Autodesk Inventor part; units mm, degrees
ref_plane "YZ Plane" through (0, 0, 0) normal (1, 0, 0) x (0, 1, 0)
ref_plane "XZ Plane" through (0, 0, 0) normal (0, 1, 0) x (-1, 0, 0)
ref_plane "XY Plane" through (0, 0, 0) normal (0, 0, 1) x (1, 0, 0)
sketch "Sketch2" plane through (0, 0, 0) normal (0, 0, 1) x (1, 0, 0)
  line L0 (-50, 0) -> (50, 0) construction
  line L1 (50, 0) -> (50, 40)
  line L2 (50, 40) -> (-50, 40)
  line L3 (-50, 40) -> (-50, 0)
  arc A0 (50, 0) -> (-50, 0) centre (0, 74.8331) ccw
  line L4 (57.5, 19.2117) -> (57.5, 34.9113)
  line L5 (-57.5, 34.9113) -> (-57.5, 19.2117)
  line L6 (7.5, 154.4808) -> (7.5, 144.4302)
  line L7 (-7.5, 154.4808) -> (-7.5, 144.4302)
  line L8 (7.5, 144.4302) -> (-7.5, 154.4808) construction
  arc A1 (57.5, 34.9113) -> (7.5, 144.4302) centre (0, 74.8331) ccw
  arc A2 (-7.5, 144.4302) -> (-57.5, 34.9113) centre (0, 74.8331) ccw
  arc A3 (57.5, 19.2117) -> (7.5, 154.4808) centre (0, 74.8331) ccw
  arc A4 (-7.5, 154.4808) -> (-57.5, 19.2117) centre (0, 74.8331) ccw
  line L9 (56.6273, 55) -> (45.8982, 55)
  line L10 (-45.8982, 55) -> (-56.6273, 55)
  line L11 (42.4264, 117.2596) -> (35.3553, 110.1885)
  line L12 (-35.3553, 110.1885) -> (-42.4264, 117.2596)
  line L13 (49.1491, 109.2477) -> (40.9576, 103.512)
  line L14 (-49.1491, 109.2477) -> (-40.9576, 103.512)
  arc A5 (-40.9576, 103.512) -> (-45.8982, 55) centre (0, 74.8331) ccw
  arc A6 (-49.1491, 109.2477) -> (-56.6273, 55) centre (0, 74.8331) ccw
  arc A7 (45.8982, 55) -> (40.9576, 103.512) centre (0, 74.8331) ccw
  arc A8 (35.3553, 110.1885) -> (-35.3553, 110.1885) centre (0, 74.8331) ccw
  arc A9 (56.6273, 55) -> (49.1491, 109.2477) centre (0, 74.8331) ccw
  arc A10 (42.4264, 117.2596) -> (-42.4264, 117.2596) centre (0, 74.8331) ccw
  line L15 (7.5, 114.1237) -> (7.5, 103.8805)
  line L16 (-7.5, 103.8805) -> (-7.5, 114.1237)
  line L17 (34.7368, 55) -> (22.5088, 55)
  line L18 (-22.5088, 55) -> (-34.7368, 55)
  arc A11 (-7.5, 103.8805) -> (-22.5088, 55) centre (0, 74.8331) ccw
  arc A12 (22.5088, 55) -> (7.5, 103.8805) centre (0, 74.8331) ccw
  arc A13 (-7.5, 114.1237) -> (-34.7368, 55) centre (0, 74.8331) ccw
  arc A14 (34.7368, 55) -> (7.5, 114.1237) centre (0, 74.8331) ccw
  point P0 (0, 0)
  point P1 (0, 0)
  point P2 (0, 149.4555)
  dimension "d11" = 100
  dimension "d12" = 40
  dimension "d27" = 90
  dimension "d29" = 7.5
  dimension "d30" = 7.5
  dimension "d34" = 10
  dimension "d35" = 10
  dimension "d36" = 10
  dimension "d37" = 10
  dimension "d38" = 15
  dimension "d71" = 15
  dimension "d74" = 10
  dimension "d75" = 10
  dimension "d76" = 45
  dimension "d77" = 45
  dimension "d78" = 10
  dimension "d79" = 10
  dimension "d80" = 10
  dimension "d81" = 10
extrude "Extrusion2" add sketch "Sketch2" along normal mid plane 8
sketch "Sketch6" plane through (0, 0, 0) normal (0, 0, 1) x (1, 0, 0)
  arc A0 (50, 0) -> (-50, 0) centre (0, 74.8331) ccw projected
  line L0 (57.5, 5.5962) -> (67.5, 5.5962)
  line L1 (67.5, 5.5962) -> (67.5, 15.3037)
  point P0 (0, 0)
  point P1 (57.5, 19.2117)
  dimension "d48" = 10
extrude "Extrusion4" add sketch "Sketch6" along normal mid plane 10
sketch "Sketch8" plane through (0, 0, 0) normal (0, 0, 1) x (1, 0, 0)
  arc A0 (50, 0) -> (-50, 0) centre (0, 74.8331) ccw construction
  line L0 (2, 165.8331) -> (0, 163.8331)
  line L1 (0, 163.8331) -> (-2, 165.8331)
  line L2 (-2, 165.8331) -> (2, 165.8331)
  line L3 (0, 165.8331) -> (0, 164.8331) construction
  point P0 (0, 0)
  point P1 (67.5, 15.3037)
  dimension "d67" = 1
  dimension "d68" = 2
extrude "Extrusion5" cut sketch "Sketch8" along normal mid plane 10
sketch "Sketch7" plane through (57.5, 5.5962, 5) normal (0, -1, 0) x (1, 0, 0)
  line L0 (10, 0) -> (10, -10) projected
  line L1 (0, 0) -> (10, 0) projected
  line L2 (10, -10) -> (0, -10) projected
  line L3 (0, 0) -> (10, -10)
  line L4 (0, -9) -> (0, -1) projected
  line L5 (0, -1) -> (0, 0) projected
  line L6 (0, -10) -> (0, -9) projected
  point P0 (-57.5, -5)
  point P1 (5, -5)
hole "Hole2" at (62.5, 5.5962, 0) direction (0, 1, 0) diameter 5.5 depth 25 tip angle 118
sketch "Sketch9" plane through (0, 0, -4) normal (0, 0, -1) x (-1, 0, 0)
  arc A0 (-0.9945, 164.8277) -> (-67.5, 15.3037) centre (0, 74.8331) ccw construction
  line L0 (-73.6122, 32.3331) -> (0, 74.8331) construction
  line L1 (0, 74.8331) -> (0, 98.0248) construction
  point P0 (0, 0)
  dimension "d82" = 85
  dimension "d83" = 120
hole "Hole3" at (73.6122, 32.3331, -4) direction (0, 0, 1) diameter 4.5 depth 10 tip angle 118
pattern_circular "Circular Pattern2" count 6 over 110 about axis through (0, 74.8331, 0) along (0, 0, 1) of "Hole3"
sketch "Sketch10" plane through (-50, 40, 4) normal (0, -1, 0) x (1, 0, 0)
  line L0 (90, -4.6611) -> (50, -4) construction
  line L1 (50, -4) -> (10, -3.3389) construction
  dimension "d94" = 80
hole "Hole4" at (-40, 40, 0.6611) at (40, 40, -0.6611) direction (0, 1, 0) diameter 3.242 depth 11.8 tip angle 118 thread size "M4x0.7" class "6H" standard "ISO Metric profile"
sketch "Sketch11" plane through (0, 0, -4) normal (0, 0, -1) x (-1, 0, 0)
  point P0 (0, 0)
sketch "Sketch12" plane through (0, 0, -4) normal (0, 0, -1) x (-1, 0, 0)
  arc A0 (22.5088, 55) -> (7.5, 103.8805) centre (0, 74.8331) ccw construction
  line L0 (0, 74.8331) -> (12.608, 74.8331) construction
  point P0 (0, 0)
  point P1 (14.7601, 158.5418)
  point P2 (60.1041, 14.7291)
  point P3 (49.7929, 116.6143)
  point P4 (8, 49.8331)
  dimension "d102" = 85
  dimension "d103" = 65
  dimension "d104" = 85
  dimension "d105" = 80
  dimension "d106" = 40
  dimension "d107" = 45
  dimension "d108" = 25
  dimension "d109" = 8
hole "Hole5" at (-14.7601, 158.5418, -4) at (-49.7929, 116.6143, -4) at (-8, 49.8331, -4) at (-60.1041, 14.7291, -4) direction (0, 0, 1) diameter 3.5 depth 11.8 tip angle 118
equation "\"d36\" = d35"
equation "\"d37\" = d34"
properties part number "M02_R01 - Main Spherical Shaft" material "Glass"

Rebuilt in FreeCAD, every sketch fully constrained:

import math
import FreeCAD as App
import Part
import Sketcher
from FreeCAD import Vector
Q = App.Units.Quantity

doc = App.newDocument("Part")
params = doc.addObject("Spreadsheet::Sheet", "Params")
for row, (alias, value) in enumerate([
    ("sketch1_radius", "90 mm"),
    ("sketch1_radius2", "50 mm"),
    ("sketch1_radius3", "40 mm"),
    ("sketch1_width", "100 mm"),
    ("sketch1_height", "40 mm"),
    ("pad1_length", "8 mm"),
    ("sketch2_width", "10 mm"),
    ("sketch2_radius", "90 mm"),
    ("pad2_length", "10 mm"),
    ("pocket1_length", "10 mm"),
    ("sketch4_diameter", "5.5 mm"),
    ("hole_diameter", "5.5 mm"),
    ("hole_depth", "25 mm"),
    ("sketch5_diameter", "4.5 mm"),
    ("hole2_diameter", "4.5 mm"),
    ("hole2_depth", "10 mm"),
    ("hole3_diameter", "3.242 mm"),
    ("hole3_depth", "11.8 mm"),
    ("sketch7_diameter", "3.5 mm"),
    ("hole4_diameter", "3.5 mm"),
    ("hole4_depth", "11.8 mm"),
], start=1):
    params.set(f"A{row}", alias)
    params.set(f"B{row}", "=" + value)
    params.setAlias(f"B{row}", alias)

body = doc.addObject("PartDesign::Body", "Body")

# Sketch on XY plane
sketch1 = body.newObject("Sketcher::SketchObject", "Sketch")
sketch1.AttachmentSupport = (doc.getObject("XY_Plane"), [""])
sketch1.MapMode = "FlatFace"
sketch1.addGeometry(Part.LineSegment(Vector(50, 40, 0), Vector(50, 0, 0)), False)
sketch1.addGeometry(Part.ArcOfCircle(Part.Circle(Vector(0, 75, 0), Vector(0, 0, 1), 90), math.radians(-56), math.radians(236)), False)
sketch1.addGeometry(Part.LineSegment(Vector(-50, 0, 0), Vector(-50, 40, 0)), False)
sketch1.addGeometry(Part.LineSegment(Vector(-50, 40, 0), Vector(50, 40, 0)), False)
sketch1.addGeometry(Part.ArcOfCircle(Part.Circle(Vector(0, 75, 0), Vector(0, 0, 1), 50), math.radians(145), math.radians(203)), False)
sketch1.addGeometry(Part.LineSegment(Vector(-46, 55, 0), Vector(-57, 55, 0)), False)
sketch1.addGeometry(Part.ArcOfCircle(Part.Circle(Vector(0, 75, 0), Vector(0, 0, 1), 60), math.radians(145), math.radians(199)), False)
sketch1.addGeometry(Part.LineSegment(Vector(-49, 109, 0), Vector(-41, 104, 0)), False)
sketch1.addGeometry(Part.ArcOfCircle(Part.Circle(Vector(0, 75, 0), Vector(0, 0, 1), 60), math.radians(-19), math.radians(35)), False)
sketch1.addGeometry(Part.LineSegment(Vector(57, 55, 0), Vector(46, 55, 0)), False)
sketch1.addGeometry(Part.ArcOfCircle(Part.Circle(Vector(0, 75, 0), Vector(0, 0, 1), 50), math.radians(-23), math.radians(35)), False)
sketch1.addGeometry(Part.LineSegment(Vector(41, 104, 0), Vector(49, 109, 0)), False)
sketch1.addGeometry(Part.ArcOfCircle(Part.Circle(Vector(0, 75, 0), Vector(0, 0, 1), 70), math.radians(96), math.radians(215)), False)
sketch1.addGeometry(Part.LineSegment(Vector(-58, 35, 0), Vector(-58, 19, 0)), False)
sketch1.addGeometry(Part.ArcOfCircle(Part.Circle(Vector(0, 75, 0), Vector(0, 0, 1), 80), math.radians(95), math.radians(224)), False)
sketch1.addGeometry(Part.LineSegment(Vector(-8, 154, 0), Vector(-8, 144, 0)), False)
sketch1.addGeometry(Part.LineSegment(Vector(-8, 114, 0), Vector(-8, 104, 0)), False)
sketch1.addGeometry(Part.ArcOfCircle(Part.Circle(Vector(0, 75, 0), Vector(0, 0, 1), 30), math.radians(104), math.radians(221)), False)
sketch1.addGeometry(Part.LineSegment(Vector(-23, 55, 0), Vector(-35, 55, 0)), False)
sketch1.addGeometry(Part.ArcOfCircle(Part.Circle(Vector(0, 75, 0), Vector(0, 0, 1), 40), math.radians(101), math.radians(210)), False)
sketch1.addGeometry(Part.LineSegment(Vector(8, 104, 0), Vector(8, 114, 0)), False)
sketch1.addGeometry(Part.ArcOfCircle(Part.Circle(Vector(0, 75, 0), Vector(0, 0, 1), 40), math.radians(-30), math.radians(79)), False)
sketch1.addGeometry(Part.LineSegment(Vector(35, 55, 0), Vector(23, 55, 0)), False)
sketch1.addGeometry(Part.ArcOfCircle(Part.Circle(Vector(0, 75, 0), Vector(0, 0, 1), 30), math.radians(-41), math.radians(76)), False)
sketch1.addGeometry(Part.ArcOfCircle(Part.Circle(Vector(0, 75, 0), Vector(0, 0, 1), 80), math.radians(-44), math.radians(85)), False)
sketch1.addGeometry(Part.LineSegment(Vector(58, 19, 0), Vector(58, 35, 0)), False)
sketch1.addGeometry(Part.ArcOfCircle(Part.Circle(Vector(0, 75, 0), Vector(0, 0, 1), 70), math.radians(-35), math.radians(84)), False)
sketch1.addGeometry(Part.LineSegment(Vector(8, 144, 0), Vector(8, 154, 0)), False)
sketch1.addGeometry(Part.ArcOfCircle(Part.Circle(Vector(0, 75, 0), Vector(0, 0, 1), 60), math.radians(45), math.radians(135)), False)
sketch1.addGeometry(Part.LineSegment(Vector(42, 117, 0), Vector(35, 110, 0)), False)
sketch1.addGeometry(Part.ArcOfCircle(Part.Circle(Vector(0, 75, 0), Vector(0, 0, 1), 50), math.radians(45), math.radians(135)), False)
sketch1.addGeometry(Part.LineSegment(Vector(-35, 110, 0), Vector(-42, 117, 0)), False)
sketch1.addConstraint(Sketcher.Constraint("Coincident", 0, 2, 1, 1))
sketch1.addConstraint(Sketcher.Constraint("Coincident", 1, 2, 2, 1))
sketch1.addConstraint(Sketcher.Constraint("Coincident", 2, 2, 3, 1))
sketch1.addConstraint(Sketcher.Constraint("Coincident", 3, 2, 0, 1))
sketch1.addConstraint(Sketcher.Constraint("Coincident", 4, 2, 5, 1))
sketch1.addConstraint(Sketcher.Constraint("Coincident", 5, 2, 6, 2))
sketch1.addConstraint(Sketcher.Constraint("Coincident", 6, 1, 7, 1))
sketch1.addConstraint(Sketcher.Constraint("Coincident", 7, 2, 4, 1))
sketch1.addConstraint(Sketcher.Constraint("Coincident", 8, 1, 9, 1))
sketch1.addConstraint(Sketcher.Constraint("Coincident", 9, 2, 10, 1))
sketch1.addConstraint(Sketcher.Constraint("Coincident", 10, 2, 11, 1))
sketch1.addConstraint(Sketcher.Constraint("Coincident", 11, 2, 8, 2))
sketch1.addConstraint(Sketcher.Constraint("Coincident", 12, 2, 13, 1))
sketch1.addConstraint(Sketcher.Constraint("Coincident", 13, 2, 14, 2))
sketch1.addConstraint(Sketcher.Constraint("Coincident", 14, 1, 15, 1))
sketch1.addConstraint(Sketcher.Constraint("Coincident", 15, 2, 12, 1))
sketch1.addConstraint(Sketcher.Constraint("Coincident", 16, 2, 17, 1))
sketch1.addConstraint(Sketcher.Constraint("Coincident", 17, 2, 18, 1))
sketch1.addConstraint(Sketcher.Constraint("Coincident", 18, 2, 19, 2))
sketch1.addConstraint(Sketcher.Constraint("Coincident", 19, 1, 16, 1))
sketch1.addConstraint(Sketcher.Constraint("Coincident", 20, 2, 21, 2))
sketch1.addConstraint(Sketcher.Constraint("Coincident", 21, 1, 22, 1))
sketch1.addConstraint(Sketcher.Constraint("Coincident", 22, 2, 23, 1))
sketch1.addConstraint(Sketcher.Constraint("Coincident", 23, 2, 20, 1))
sketch1.addConstraint(Sketcher.Constraint("Coincident", 24, 1, 25, 1))
sketch1.addConstraint(Sketcher.Constraint("Coincident", 25, 2, 26, 1))
sketch1.addConstraint(Sketcher.Constraint("Coincident", 26, 2, 27, 1))
sketch1.addConstraint(Sketcher.Constraint("Coincident", 27, 2, 24, 2))
sketch1.addConstraint(Sketcher.Constraint("Coincident", 28, 1, 29, 1))
sketch1.addConstraint(Sketcher.Constraint("Coincident", 29, 2, 30, 1))
sketch1.addConstraint(Sketcher.Constraint("Coincident", 30, 2, 31, 1))
sketch1.addConstraint(Sketcher.Constraint("Coincident", 31, 2, 28, 2))
sketch1.addConstraint(Sketcher.Constraint("Vertical", 0))
sketch1.addConstraint(Sketcher.Constraint("Vertical", 2))
sketch1.addConstraint(Sketcher.Constraint("Horizontal", 3))
sketch1.addConstraint(Sketcher.Constraint("Horizontal", 5))
sketch1.addConstraint(Sketcher.Constraint("Horizontal", 9))
sketch1.addConstraint(Sketcher.Constraint("Vertical", 13))
sketch1.addConstraint(Sketcher.Constraint("Vertical", 15))
sketch1.addConstraint(Sketcher.Constraint("Vertical", 16))
sketch1.addConstraint(Sketcher.Constraint("Horizontal", 18))
sketch1.addConstraint(Sketcher.Constraint("Vertical", 20))
sketch1.addConstraint(Sketcher.Constraint("Horizontal", 22))
sketch1.addConstraint(Sketcher.Constraint("Vertical", 25))
sketch1.addConstraint(Sketcher.Constraint("Vertical", 27))
sketch1.addConstraint(Sketcher.Constraint("Coincident", 4, 3, 1, 3))
sketch1.addConstraint(Sketcher.Constraint("Coincident", 6, 3, 1, 3))
sketch1.addConstraint(Sketcher.Constraint("Coincident", 8, 3, 1, 3))
sketch1.addConstraint(Sketcher.Constraint("Coincident", 10, 3, 1, 3))
sketch1.addConstraint(Sketcher.Constraint("Coincident", 12, 3, 1, 3))
sketch1.addConstraint(Sketcher.Constraint("Coincident", 14, 3, 1, 3))
sketch1.addConstraint(Sketcher.Constraint("Coincident", 17, 3, 1, 3))
sketch1.addConstraint(Sketcher.Constraint("Coincident", 19, 3, 1, 3))
sketch1.addConstraint(Sketcher.Constraint("Coincident", 21, 3, 1, 3))
sketch1.addConstraint(Sketcher.Constraint("Coincident", 23, 3, 1, 3))
sketch1.addConstraint(Sketcher.Constraint("Coincident", 24, 3, 1, 3))
sketch1.addConstraint(Sketcher.Constraint("Coincident", 26, 3, 1, 3))
sketch1.addConstraint(Sketcher.Constraint("Coincident", 28, 3, 1, 3))
sketch1.addConstraint(Sketcher.Constraint("Coincident", 30, 3, 1, 3))
sketch1.addConstraint(Sketcher.Constraint("Equal", 6, 8))
sketch1.addConstraint(Sketcher.Constraint("Equal", 4, 10))
sketch1.addConstraint(Sketcher.Constraint("Equal", 19, 21))
sketch1.addConstraint(Sketcher.Constraint("Equal", 17, 23))
sketch1.addConstraint(Sketcher.Constraint("Equal", 14, 24))
sketch1.addConstraint(Sketcher.Constraint("Equal", 12, 26))
sketch1.addConstraint(Sketcher.Constraint("Equal", 8, 28))
sketch1.addConstraint(Sketcher.Constraint("Equal", 10, 30))
sketch1.addConstraint(Sketcher.Constraint("Symmetric", 0, 2, 1, 2, -1, 1))
sketch1.addConstraint(Sketcher.Constraint("Symmetric", 5, 2, 8, 1, -2))
sketch1.addConstraint(Sketcher.Constraint("Perpendicular", 29, 31))
sketch1.addConstraint(Sketcher.Constraint("Horizontal", 7, 2, 10, 2))
sketch1.addConstraint(Sketcher.Constraint("Horizontal", 6, 1, 11, 2))
sketch1.addConstraint(Sketcher.Constraint("Horizontal", 9, 2, 17, 2))
sketch1.addConstraint(Sketcher.Constraint("Horizontal", 19, 1, 20, 2))
sketch1.addConstraint(Sketcher.Constraint("Horizontal", 18, 2, 21, 1))
sketch1.addConstraint(Sketcher.Constraint("Horizontal", 13, 2, 24, 1))
sketch1.addConstraint(Sketcher.Constraint("Horizontal", 15, 2, 26, 2))
sketch1.addConstraint(Sketcher.Constraint("Horizontal", 29, 2, 30, 2))
sketch1.addConstraint(Sketcher.Constraint("Horizontal", 28, 1, 31, 2))
sketch1.addConstraint(Sketcher.Constraint("Vertical", 15, 2, 16, 2))
sketch1.addConstraint(Sketcher.Constraint("Radius", 1, Q("90 mm")))
sketch1.addConstraint(Sketcher.Constraint("Radius", 4, Q("50 mm")))
sketch1.addConstraint(Sketcher.Constraint("Radius", 19, Q("40 mm")))
sketch1.addConstraint(Sketcher.Constraint("DistanceX", 3, 1, 3, 2, Q("100 mm")))
sketch1.addConstraint(Sketcher.Constraint("DistanceY", 0, 2, 0, 1, Q("40 mm")))
sketch1.addConstraint(Sketcher.Constraint("Distance", 7, Q("10 mm")))
sketch1.addConstraint(Sketcher.Constraint("Radius", 12, Q("70 mm")))
sketch1.addConstraint(Sketcher.Constraint("Radius", 14, Q("80 mm")))
sketch1.addConstraint(Sketcher.Constraint("Radius", 17, Q("30 mm")))
sketch1.addConstraint(Sketcher.Constraint("DistanceY", 2, 2, 4, 2, Q("15 mm")))
sketch1.addConstraint(Sketcher.Constraint("DistanceX", 19, 1, 20, 2, Q("15 mm")))
sketch1.addConstraint(Sketcher.Constraint("DistanceX", 12, 2, 2, 2, Q("7.5 mm")))
sketch1.addConstraint(Sketcher.Constraint("Angle", 7, Q("-34.9998 deg")))
sketch1.addConstraint(Sketcher.Constraint("DistanceY", -1, 1, 7, 2, Q("103.512 mm")))
sketch1.addConstraint(Sketcher.Constraint("DistanceY", 11, 2, 28, 1, Q("8.012 mm")))
sketch1.setExpression("Constraints[80]", "Params.sketch1_radius")
sketch1.setExpression("Constraints[81]", "Params.sketch1_radius2")
sketch1.setExpression("Constraints[82]", "Params.sketch1_radius3")
sketch1.setExpression("Constraints[83]", "Params.sketch1_width")
sketch1.setExpression("Constraints[84]", "Params.sketch1_height")
pad1 = body.newObject("PartDesign::Pad", "Pad")
pad1.Profile = sketch1
pad1.setExpression("Length", "Params.pad1_length")
pad1.Midplane = True

# Sketch on XY plane
sketch2 = body.newObject("Sketcher::SketchObject", "Sketch001")
sketch2.AttachmentSupport = (doc.getObject("XY_Plane"), [""])
sketch2.MapMode = "FlatFace"
sketch2.addGeometry(Part.ArcOfCircle(Part.Circle(Vector(0, 75, 0), Vector(0, 0, 1), 90), math.radians(-50.29), math.radians(-41.41)), False)
sketch2.addGeometry(Part.LineSegment(Vector(58, 6, 0), Vector(68, 6, 0)), False)
sketch2.addGeometry(Part.LineSegment(Vector(68, 6, 0), Vector(68, 15, 0)), False)
sketch2.addConstraint(Sketcher.Constraint("Coincident", 0, 1, 1, 1))
sketch2.addConstraint(Sketcher.Constraint("Coincident", 1, 2, 2, 1))
sketch2.addConstraint(Sketcher.Constraint("Coincident", 2, 2, 0, 2))
sketch2.addConstraint(Sketcher.Constraint("Horizontal", 1))
sketch2.addConstraint(Sketcher.Constraint("Vertical", 2))
sketch2.addConstraint(Sketcher.Constraint("PointOnObject", 0, 3, -2))
sketch2.addConstraint(Sketcher.Constraint("DistanceX", 1, 1, 1, 2, Q("10 mm")))
sketch2.addConstraint(Sketcher.Constraint("Radius", 0, Q("90 mm")))
sketch2.addConstraint(Sketcher.Constraint("DistanceX", -1, 1, 0, 1, Q("57.5 mm")))
sketch2.addConstraint(Sketcher.Constraint("DistanceY", -1, 1, 0, 3, Q("74.833 mm")))
sketch2.setExpression("Constraints[6]", "Params.sketch2_width")
sketch2.setExpression("Constraints[7]", "Params.sketch2_radius")
pad2 = body.newObject("PartDesign::Pad", "Pad001")
pad2.Profile = sketch2
pad2.setExpression("Length", "Params.pad2_length")
pad2.Midplane = True

# Sketch on XY plane
sketch3 = body.newObject("Sketcher::SketchObject", "Sketch002")
sketch3.AttachmentSupport = (doc.getObject("XY_Plane"), [""])
sketch3.MapMode = "FlatFace"
sketch3.addGeometry(Part.LineSegment(Vector(0, 163.8, 0), Vector(2, 165.8, 0)), False)
sketch3.addGeometry(Part.LineSegment(Vector(2, 165.8, 0), Vector(-2, 165.8, 0)), False)
sketch3.addGeometry(Part.LineSegment(Vector(-2, 165.8, 0), Vector(0, 163.8, 0)), False)
sketch3.addConstraint(Sketcher.Constraint("Coincident", 0, 2, 1, 1))
sketch3.addConstraint(Sketcher.Constraint("Coincident", 1, 2, 2, 1))
sketch3.addConstraint(Sketcher.Constraint("Coincident", 2, 2, 0, 1))
sketch3.addConstraint(Sketcher.Constraint("Horizontal", 1))
sketch3.addConstraint(Sketcher.Constraint("PointOnObject", 2, 2, -2))
sketch3.addConstraint(Sketcher.Constraint("Perpendicular", 0, 2))
sketch3.addConstraint(Sketcher.Constraint("Equal", 0, 2))
sketch3.addConstraint(Sketcher.Constraint("DistanceX", -1, 1, 0, 2, Q("2 mm")))
sketch3.addConstraint(Sketcher.Constraint("DistanceY", -1, 1, 0, 2, Q("165.833 mm")))
pocket1 = body.newObject("PartDesign::Pocket", "Pocket")
pocket1.Profile = sketch3
pocket1.setExpression("Length", "Params.pocket1_length")
pocket1.Midplane = True

# Sketch on XZ plane
sketch4 = body.newObject("Sketcher::SketchObject", "Sketch003")
sketch4.AttachmentSupport = (doc.getObject("XZ_Plane"), [""])
sketch4.MapMode = "FlatFace"
sketch4.AttachmentOffset = App.Placement(Vector(0, 0, -5.5962), App.Rotation())
sketch4.addGeometry(Part.Circle(Vector(62.5, 0, 0), Vector(0, 0, 1), 2.8), False)
sketch4.addConstraint(Sketcher.Constraint("PointOnObject", 0, 3, -1))
sketch4.addConstraint(Sketcher.Constraint("Diameter", 0, Q("5.5 mm")))
sketch4.addConstraint(Sketcher.Constraint("DistanceX", -1, 1, 0, 3, Q("62.5 mm")))
sketch4.setExpression("Constraints[1]", "Params.sketch4_diameter")
doc.recompute()
hole = body.newObject("PartDesign::Hole", "Hole")
hole.Profile = sketch4
hole.ThreadType = "None"
hole.setExpression("Diameter", "Params.hole_diameter")
hole.DepthType = "Dimension"
hole.setExpression("Depth", "Params.hole_depth")
hole.DrillPoint = "Angled"
hole.DrillPointAngle = 118

# Sketch on XY plane
sketch5 = body.newObject("Sketcher::SketchObject", "Sketch004")
sketch5.AttachmentSupport = (doc.getObject("XY_Plane"), [""])
sketch5.MapMode = "FlatFace"
sketch5.AttachmentOffset = App.Placement(Vector(0, 0, -4), App.Rotation())
sketch5.addGeometry(Part.Circle(Vector(73.6, 32.3, 0), Vector(0, 0, 1), 2.2), False)
sketch5.addConstraint(Sketcher.Constraint("Diameter", 0, Q("4.5 mm")))
sketch5.addConstraint(Sketcher.Constraint("DistanceY", -1, 1, 0, 3, Q("32.333 mm")))
sketch5.addConstraint(Sketcher.Constraint("DistanceX", -1, 1, 0, 3, Q("73.6122 mm")))
sketch5.setExpression("Constraints[0]", "Params.sketch5_diameter")
doc.recompute()
hole2 = body.newObject("PartDesign::Hole", "Hole001")
hole2.Profile = sketch5
hole2.ThreadType = "None"
hole2.setExpression("Diameter", "Params.hole2_diameter")
hole2.DepthType = "Dimension"
hole2.setExpression("Depth", "Params.hole2_depth")
hole2.DrillPoint = "Angled"
hole2.DrillPointAngle = 118
hole2.Reversed = True
doc.recompute()

datumline = body.newObject("PartDesign::Line", "DatumLine")
datumline.Placement = App.Placement(Vector(0, 74.8331, 0), App.Rotation(Vector(0, 0, 1), Vector(0, 0, 1)))
polarpattern = body.newObject("PartDesign::PolarPattern", "PolarPattern")
polarpattern.Originals = [hole2]
polarpattern.Axis = (datumline, [""])
polarpattern.Angle = 110
polarpattern.Occurrences = 6
body.Tip = polarpattern

# Sketch on XZ plane
sketch6 = body.newObject("Sketcher::SketchObject", "Sketch005")
sketch6.AttachmentSupport = (doc.getObject("XZ_Plane"), [""])
sketch6.MapMode = "FlatFace"
sketch6.AttachmentOffset = App.Placement(Vector(0, 0, -40), App.Rotation())
sketch6.addGeometry(Part.Circle(Vector(-40, 0.7, 0), Vector(0, 0, 1), 1.6), False)
sketch6.addGeometry(Part.Circle(Vector(40, -0.7, 0), Vector(0, 0, 1), 1.6), False)
sketch6.addConstraint(Sketcher.Constraint("Equal", 0, 1))
sketch6.addConstraint(Sketcher.Constraint("Symmetric", 0, 3, 1, 3, -1, 1))
sketch6.addConstraint(Sketcher.Constraint("Diameter", 0, Q("3.242 mm")))
sketch6.addConstraint(Sketcher.Constraint("DistanceX", 0, 3, -1, 1, Q("40 mm")))
sketch6.addConstraint(Sketcher.Constraint("DistanceY", -1, 1, 0, 3, Q("0.661 mm")))
doc.recompute()
hole3 = body.newObject("PartDesign::Hole", "Hole002")
hole3.Profile = sketch6
hole3.ThreadType = "None"
hole3.setExpression("Diameter", "Params.hole3_diameter")
hole3.DepthType = "Dimension"
hole3.setExpression("Depth", "Params.hole3_depth")
hole3.DrillPoint = "Angled"
hole3.DrillPointAngle = 118

# Sketch on XY plane
sketch7 = body.newObject("Sketcher::SketchObject", "Sketch006")
sketch7.AttachmentSupport = (doc.getObject("XY_Plane"), [""])
sketch7.MapMode = "FlatFace"
sketch7.AttachmentOffset = App.Placement(Vector(0, 0, -4), App.Rotation())
sketch7.addGeometry(Part.Circle(Vector(-14.8, 158.5, 0), Vector(0, 0, 1), 1.8), False)
sketch7.addGeometry(Part.Circle(Vector(-49.8, 116.6, 0), Vector(0, 0, 1), 1.8), False)
sketch7.addGeometry(Part.Circle(Vector(-8, 49.8, 0), Vector(0, 0, 1), 1.8), False)
sketch7.addGeometry(Part.Circle(Vector(-60.1, 14.7, 0), Vector(0, 0, 1), 1.8), False)
sketch7.addConstraint(Sketcher.Constraint("Equal", 0, 1))
sketch7.addConstraint(Sketcher.Constraint("Equal", 1, 2))
sketch7.addConstraint(Sketcher.Constraint("Equal", 2, 3))
sketch7.addConstraint(Sketcher.Constraint("Diameter", 0, Q("3.5 mm")))
sketch7.addConstraint(Sketcher.Constraint("DistanceX", 2, 3, -1, 1, Q("8 mm")))
sketch7.addConstraint(Sketcher.Constraint("DistanceX", 0, 3, -1, 1, Q("14.76 mm")))
sketch7.addConstraint(Sketcher.Constraint("DistanceX", 1, 3, -1, 1, Q("49.793 mm")))
sketch7.addConstraint(Sketcher.Constraint("DistanceY", -1, 1, 2, 3, Q("49.833 mm")))
sketch7.addConstraint(Sketcher.Constraint("DistanceX", 3, 3, -1, 1, Q("60.104 mm")))
sketch7.addConstraint(Sketcher.Constraint("DistanceY", -1, 1, 3, 3, Q("14.729 mm")))
sketch7.addConstraint(Sketcher.Constraint("DistanceY", -1, 1, 0, 3, Q("158.5418 mm")))
sketch7.addConstraint(Sketcher.Constraint("DistanceY", -1, 1, 1, 3, Q("116.6143 mm")))
sketch7.setExpression("Constraints[3]", "Params.sketch7_diameter")
doc.recompute()
hole4 = body.newObject("PartDesign::Hole", "Hole003")
hole4.Profile = sketch7
hole4.ThreadType = "None"
hole4.setExpression("Diameter", "Params.hole4_diameter")
hole4.DepthType = "Dimension"
hole4.setExpression("Depth", "Params.hole4_depth")
hole4.DrillPoint = "Angled"
hole4.DrillPointAngle = 118
hole4.Reversed = True

doc.recompute()
